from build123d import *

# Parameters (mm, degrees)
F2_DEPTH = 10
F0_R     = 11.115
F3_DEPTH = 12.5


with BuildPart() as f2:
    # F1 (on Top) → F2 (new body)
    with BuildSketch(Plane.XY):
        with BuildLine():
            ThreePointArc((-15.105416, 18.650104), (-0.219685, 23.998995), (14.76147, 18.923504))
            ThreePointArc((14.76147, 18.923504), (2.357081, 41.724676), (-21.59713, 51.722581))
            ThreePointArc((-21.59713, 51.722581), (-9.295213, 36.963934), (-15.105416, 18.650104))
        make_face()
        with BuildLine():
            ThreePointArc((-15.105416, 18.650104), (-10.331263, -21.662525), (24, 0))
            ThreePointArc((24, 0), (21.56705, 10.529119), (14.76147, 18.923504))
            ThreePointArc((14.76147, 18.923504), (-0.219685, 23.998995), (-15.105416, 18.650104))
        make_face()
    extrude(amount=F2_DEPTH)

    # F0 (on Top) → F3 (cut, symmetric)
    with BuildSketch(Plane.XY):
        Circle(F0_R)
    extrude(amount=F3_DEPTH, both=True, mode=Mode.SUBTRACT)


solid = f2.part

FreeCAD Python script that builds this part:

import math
import FreeCAD as App
import Part
import Sketcher
Q = App.Units.Quantity

doc = App.newDocument("Part")
params = doc.addObject("Spreadsheet::Sheet", "Params")
for row, (alias, value) in enumerate([
    ("sketch1_radius", "20 mm"),
    ("sketch1_radius2", "24 mm"),
    ("pad1_length", "10 mm"),
    ("sketch2_diameter", "22.23 mm"),
    ("pocket1_length", "25 mm"),
], start=1):
    params.set(f"A{row}", alias)
    params.set(f"B{row}", "=" + value)
    params.setAlias(f"B{row}", alias)

body = doc.addObject("PartDesign::Body", "Body")

# Sketch on XY plane
sketch1 = body.newObject("Sketcher::SketchObject", "Sketch")
sketch1.AttachmentSupport = (doc.getObject("XY_Plane"), [""])
sketch1.MapMode = "FlatFace"
sketch1.addGeometry(Part.ArcOfCircle(Part.Circle(App.Vector(-23.816004, 12.711155, 0), App.Vector(0, 0, 1), 39.074477), math.radians(9.148125), math.radians(86.744665)), False)
sketch1.addGeometry(Part.ArcOfCircle(Part.Circle(App.Vector(-28.920713, 33.111694, 0), App.Vector(0, 0, 1), 20), math.radians(-46.309317), math.radians(68.519833)), False)
sketch1.addGeometry(Part.ArcOfCircle(Part.Circle(App.Vector(0, 0, 0), App.Vector(0, 0, 1), 24), math.radians(129.005306), math.radians(360)), False)
sketch1.addGeometry(Part.ArcOfCircle(Part.Circle(App.Vector(-0.000001, -0.000001, 0), App.Vector(0, 0, 1), 24.000001), math.radians(0.000002), math.radians(52.043627)), False)
sketch1.addConstraint(Sketcher.Constraint("Coincident", 0, 2, 1, 2))
sketch1.addConstraint(Sketcher.Constraint("Coincident", 1, 1, 2, 1))
sketch1.addConstraint(Sketcher.Constraint("Tangent", 2, 2, 3, 1))
sketch1.addConstraint(Sketcher.Constraint("Coincident", 3, 2, 0, 1))
sketch1.addConstraint(Sketcher.Constraint("Coincident", 2, 3, -1, 1))
sketch1.addConstraint(Sketcher.Constraint("Equal", 2, 3))
sketch1.addConstraint(Sketcher.Constraint("PointOnObject", 2, 2, -1))
sketch1.addConstraint(Sketcher.Constraint("Radius", 1, Q("20 mm")))
sketch1.addConstraint(Sketcher.Constraint("Radius", 2, Q("24 mm")))
sketch1.addConstraint(Sketcher.Constraint("Radius", 0, Q("39.074477 mm")))
sketch1.addConstraint(Sketcher.Constraint("DistanceY", 1, 1, 3, 2, Q("0.2734 mm")))
sketch1.addConstraint(Sketcher.Constraint("DistanceX", 0, 2, -1, 1, Q("21.59713 mm")))
sketch1.addConstraint(Sketcher.Constraint("DistanceY", -1, 1, 0, 2, Q("51.722581 mm")))
sketch1.addConstraint(Sketcher.Constraint("DistanceX", -1, 1, 3, 2, Q("14.76147 mm")))
sketch1.setExpression("Constraints[7]", "Params.sketch1_radius")
sketch1.setExpression("Constraints[8]", "Params.sketch1_radius2")
pad1 = body.newObject("PartDesign::Pad", "Pad")
pad1.Profile = sketch1
pad1.setExpression("Length", "Params.pad1_length")

# Sketch on XY plane
sketch2 = body.newObject("Sketcher::SketchObject", "Sketch001")
sketch2.AttachmentSupport = (doc.getObject("XY_Plane"), [""])
sketch2.MapMode = "FlatFace"
sketch2.addGeometry(Part.Circle(App.Vector(0, 0, 0), App.Vector(0, 0, 1), 11.115), False)
sketch2.addConstraint(Sketcher.Constraint("Coincident", 0, 3, -1, 1))
sketch2.addConstraint(Sketcher.Constraint("Diameter", 0, Q("22.23 mm")))
sketch2.setExpression("Constraints[1]", "Params.sketch2_diameter")
pocket1 = body.newObject("PartDesign::Pocket", "Pocket")
pocket1.Profile = sketch2
pocket1.setExpression("Length", "Params.pocket1_length")
pocket1.Midplane = True

doc.recompute()
